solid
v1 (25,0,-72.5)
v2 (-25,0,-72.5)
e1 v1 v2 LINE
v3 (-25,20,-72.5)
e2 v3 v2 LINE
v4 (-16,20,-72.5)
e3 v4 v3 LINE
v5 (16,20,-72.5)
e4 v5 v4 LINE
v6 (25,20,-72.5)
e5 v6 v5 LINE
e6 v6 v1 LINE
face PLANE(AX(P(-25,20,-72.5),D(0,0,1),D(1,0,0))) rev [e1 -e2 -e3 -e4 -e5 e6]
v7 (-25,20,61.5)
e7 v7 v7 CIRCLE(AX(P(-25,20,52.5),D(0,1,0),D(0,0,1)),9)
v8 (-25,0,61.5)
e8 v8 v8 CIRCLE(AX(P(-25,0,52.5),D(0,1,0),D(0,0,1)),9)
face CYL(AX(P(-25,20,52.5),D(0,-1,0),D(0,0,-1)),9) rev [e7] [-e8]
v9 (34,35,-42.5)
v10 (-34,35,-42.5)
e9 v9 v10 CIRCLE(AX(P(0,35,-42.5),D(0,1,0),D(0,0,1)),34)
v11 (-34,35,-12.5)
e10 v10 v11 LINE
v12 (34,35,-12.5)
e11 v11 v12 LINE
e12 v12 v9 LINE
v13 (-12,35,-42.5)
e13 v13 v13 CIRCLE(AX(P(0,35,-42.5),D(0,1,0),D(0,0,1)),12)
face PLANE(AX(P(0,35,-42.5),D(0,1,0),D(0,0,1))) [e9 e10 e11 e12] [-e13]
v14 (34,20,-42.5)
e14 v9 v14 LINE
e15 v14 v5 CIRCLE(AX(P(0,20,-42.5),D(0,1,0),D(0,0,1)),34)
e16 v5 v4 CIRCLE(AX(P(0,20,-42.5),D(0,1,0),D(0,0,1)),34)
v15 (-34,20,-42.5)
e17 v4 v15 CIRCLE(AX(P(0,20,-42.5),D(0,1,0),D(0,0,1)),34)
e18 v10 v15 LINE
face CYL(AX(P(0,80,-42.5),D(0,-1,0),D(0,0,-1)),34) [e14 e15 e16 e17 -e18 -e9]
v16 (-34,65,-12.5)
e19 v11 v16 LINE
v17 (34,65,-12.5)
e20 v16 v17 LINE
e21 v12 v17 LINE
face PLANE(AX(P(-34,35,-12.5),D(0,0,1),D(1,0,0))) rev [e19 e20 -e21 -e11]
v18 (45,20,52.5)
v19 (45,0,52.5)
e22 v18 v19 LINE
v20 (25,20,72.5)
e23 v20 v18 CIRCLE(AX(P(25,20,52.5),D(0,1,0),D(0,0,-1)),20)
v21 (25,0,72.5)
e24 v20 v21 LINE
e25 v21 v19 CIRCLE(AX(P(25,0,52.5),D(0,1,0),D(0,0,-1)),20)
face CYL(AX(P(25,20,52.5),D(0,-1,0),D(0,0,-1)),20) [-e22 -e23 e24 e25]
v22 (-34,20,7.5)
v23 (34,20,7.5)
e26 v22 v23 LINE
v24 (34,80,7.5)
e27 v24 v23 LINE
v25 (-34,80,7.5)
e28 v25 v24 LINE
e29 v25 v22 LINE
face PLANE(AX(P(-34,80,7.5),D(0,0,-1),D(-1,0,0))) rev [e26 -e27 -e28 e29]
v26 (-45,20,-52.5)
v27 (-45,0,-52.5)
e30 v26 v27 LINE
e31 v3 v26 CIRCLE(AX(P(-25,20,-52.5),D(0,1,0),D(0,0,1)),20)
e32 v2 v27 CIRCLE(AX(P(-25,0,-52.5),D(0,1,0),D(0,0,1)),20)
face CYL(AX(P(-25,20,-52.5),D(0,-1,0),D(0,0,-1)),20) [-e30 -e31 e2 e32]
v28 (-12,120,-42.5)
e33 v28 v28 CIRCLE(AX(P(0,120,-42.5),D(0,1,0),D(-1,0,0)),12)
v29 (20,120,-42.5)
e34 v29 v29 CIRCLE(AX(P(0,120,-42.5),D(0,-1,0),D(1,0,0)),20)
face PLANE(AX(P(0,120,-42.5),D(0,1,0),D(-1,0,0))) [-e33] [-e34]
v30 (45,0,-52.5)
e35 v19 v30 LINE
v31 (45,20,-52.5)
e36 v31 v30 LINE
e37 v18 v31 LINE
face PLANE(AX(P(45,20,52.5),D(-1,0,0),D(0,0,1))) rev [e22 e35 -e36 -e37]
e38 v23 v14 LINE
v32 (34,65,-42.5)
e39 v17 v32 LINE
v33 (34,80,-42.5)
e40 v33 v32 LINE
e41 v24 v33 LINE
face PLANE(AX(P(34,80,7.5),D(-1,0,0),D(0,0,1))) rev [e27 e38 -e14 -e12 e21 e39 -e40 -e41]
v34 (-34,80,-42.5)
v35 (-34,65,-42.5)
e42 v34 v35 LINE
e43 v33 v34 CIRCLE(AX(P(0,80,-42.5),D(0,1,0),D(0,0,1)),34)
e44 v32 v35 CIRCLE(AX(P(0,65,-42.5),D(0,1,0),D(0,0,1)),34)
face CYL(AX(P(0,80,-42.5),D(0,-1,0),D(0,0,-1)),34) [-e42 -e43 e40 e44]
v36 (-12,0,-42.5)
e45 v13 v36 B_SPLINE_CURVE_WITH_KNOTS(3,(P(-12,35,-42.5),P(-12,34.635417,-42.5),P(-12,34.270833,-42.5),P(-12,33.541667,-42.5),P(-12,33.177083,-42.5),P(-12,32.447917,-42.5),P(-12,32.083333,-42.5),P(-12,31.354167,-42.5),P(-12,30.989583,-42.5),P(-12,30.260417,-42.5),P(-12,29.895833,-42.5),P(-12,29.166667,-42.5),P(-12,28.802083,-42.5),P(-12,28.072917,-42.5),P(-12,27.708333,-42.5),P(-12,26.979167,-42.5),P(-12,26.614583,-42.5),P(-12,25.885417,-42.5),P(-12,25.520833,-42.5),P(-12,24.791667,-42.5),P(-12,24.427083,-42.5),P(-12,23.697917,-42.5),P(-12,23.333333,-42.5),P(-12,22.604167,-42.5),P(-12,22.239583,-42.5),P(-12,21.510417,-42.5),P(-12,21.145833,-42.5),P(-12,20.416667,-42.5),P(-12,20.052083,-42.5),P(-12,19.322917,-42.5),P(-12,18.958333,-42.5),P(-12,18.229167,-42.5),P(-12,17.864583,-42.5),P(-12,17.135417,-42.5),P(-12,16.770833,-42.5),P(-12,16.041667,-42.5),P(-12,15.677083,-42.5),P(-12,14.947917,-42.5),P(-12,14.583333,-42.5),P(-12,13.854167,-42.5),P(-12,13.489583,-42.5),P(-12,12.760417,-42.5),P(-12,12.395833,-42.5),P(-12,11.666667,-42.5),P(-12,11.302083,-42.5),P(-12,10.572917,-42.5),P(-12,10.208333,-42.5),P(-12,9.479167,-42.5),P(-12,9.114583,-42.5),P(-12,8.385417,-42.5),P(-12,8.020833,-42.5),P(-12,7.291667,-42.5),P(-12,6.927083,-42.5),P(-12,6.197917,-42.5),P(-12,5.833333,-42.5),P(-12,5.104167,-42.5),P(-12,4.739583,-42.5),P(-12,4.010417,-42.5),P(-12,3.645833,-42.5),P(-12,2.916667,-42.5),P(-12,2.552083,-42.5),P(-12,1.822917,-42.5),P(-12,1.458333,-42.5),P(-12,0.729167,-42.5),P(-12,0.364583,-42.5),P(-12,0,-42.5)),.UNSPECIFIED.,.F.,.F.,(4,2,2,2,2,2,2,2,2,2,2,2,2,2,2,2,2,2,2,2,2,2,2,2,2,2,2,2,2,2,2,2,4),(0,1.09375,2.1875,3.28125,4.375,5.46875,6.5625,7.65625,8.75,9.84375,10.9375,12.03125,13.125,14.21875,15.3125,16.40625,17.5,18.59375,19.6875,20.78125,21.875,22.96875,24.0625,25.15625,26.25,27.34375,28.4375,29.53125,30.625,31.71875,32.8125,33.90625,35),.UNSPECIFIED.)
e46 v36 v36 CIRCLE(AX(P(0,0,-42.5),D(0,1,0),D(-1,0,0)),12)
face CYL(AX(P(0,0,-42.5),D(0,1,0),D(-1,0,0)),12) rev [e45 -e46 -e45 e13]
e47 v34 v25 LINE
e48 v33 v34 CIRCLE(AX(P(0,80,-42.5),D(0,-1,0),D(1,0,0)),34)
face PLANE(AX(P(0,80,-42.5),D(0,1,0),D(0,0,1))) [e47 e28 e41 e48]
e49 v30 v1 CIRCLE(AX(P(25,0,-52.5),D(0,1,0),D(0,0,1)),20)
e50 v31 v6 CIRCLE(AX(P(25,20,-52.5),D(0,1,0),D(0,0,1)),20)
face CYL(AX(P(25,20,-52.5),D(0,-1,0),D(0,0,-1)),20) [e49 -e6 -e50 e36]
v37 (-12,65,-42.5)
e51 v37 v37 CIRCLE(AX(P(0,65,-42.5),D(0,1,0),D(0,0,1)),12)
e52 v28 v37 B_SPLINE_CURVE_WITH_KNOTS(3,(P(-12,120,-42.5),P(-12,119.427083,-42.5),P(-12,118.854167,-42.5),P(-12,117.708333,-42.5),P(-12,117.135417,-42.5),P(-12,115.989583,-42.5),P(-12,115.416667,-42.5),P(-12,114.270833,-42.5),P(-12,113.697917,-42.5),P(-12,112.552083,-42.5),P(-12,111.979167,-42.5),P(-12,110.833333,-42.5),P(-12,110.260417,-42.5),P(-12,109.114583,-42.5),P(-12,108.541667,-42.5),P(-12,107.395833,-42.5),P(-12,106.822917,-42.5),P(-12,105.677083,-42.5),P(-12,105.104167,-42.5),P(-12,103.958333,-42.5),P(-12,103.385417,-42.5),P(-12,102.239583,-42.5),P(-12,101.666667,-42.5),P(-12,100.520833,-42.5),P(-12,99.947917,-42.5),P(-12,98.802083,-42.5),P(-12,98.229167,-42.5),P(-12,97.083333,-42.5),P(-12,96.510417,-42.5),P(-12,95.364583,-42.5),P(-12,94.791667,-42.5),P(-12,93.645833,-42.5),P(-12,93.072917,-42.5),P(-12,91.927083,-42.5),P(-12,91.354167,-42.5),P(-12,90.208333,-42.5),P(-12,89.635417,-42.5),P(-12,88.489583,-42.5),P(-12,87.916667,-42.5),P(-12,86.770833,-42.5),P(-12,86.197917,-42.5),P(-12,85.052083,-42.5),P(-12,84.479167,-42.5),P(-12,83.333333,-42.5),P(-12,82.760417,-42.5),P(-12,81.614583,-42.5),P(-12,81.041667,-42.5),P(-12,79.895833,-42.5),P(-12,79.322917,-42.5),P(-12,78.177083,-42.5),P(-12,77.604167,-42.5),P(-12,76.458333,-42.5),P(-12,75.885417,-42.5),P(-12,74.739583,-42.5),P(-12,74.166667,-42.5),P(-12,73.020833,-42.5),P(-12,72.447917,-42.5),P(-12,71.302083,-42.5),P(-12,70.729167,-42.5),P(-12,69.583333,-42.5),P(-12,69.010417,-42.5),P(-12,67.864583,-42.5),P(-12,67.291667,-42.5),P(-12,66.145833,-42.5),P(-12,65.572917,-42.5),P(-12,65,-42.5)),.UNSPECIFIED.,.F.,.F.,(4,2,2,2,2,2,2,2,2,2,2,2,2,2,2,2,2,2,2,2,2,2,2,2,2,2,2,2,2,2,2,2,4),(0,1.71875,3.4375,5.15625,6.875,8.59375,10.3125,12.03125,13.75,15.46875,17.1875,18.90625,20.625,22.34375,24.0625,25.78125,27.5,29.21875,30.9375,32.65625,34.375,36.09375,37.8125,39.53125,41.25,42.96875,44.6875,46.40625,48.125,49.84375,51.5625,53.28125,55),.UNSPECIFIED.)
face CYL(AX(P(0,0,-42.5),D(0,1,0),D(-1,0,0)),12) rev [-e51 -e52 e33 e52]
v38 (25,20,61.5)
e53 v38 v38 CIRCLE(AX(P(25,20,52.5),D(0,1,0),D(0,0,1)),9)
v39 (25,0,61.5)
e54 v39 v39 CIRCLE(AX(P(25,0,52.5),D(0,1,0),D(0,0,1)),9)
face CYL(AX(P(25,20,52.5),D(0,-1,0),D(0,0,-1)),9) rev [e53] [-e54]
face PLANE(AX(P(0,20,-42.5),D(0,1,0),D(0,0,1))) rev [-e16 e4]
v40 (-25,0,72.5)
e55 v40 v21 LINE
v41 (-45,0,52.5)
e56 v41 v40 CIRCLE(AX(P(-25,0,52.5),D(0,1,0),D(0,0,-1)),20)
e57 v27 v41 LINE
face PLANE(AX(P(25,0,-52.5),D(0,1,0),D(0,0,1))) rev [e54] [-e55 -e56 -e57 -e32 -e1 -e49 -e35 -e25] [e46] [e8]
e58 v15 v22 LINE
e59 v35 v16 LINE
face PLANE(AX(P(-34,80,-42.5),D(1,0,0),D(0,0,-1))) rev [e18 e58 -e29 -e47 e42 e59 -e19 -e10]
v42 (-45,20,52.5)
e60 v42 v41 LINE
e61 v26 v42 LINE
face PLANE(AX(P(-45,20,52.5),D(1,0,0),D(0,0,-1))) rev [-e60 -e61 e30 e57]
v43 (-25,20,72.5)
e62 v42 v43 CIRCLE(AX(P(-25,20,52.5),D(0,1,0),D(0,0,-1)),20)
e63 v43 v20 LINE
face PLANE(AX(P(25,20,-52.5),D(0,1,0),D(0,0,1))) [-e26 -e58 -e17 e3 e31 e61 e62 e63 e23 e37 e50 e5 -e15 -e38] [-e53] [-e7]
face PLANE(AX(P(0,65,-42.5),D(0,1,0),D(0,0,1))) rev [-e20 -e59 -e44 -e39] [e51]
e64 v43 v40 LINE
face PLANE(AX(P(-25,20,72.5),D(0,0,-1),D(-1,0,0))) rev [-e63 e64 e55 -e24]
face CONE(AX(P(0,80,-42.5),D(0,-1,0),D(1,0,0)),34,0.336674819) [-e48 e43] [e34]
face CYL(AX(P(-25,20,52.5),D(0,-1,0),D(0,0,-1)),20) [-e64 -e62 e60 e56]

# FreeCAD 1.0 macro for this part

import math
import FreeCAD as App
import Part
import Sketcher
from FreeCAD import Vector
Q = App.Units.Quantity

doc = App.newDocument("Part")
body = doc.addObject("PartDesign::Body", "Body")

# Sketch on XZ plane
sketch1 = doc.addObject("Sketcher::SketchObject", "Sketch")
body.addObject(sketch1)
sketch1.AttachmentSupport = (doc.XZ_Plane, [""])
sketch1.MapMode = "FlatFace"
sketch1.addGeometry(Part.LineSegment(Vector(-25, 72, 0), Vector(25, 72, 0)), False)
sketch1.addGeometry(Part.ArcOfCircle(Part.Circle(Vector(25, 53, 0), Vector(0, 0, 1), 20), math.radians(0), math.radians(90)), False)
sketch1.addGeometry(Part.LineSegment(Vector(45, 52, 0), Vector(45, -52, 0)), False)
sketch1.addGeometry(Part.ArcOfCircle(Part.Circle(Vector(25, -53, 0), Vector(0, 0, 1), 20), math.radians(-90), math.radians(0)), False)
sketch1.addGeometry(Part.LineSegment(Vector(25, -72, 0), Vector(-25, -72, 0)), False)
sketch1.addGeometry(Part.ArcOfCircle(Part.Circle(Vector(-25, -53, 0), Vector(0, 0, 1), 20), math.radians(180), math.radians(270)), False)
sketch1.addGeometry(Part.LineSegment(Vector(-45, -52, 0), Vector(-45, 52, 0)), False)
sketch1.addGeometry(Part.ArcOfCircle(Part.Circle(Vector(-25, 53, 0), Vector(0, 0, 1), 20), math.radians(90), math.radians(180)), False)
sketch1.addGeometry(Part.Circle(Vector(-25, 52, 0), Vector(0, 0, 1), 9), False)
sketch1.addGeometry(Part.Circle(Vector(25, 52, 0), Vector(0, 0, 1), 9), False)
sketch1.addConstraint(Sketcher.Constraint("Tangent", 0, 2, 1, 2))
sketch1.addConstraint(Sketcher.Constraint("Tangent", 1, 1, 2, 1))
sketch1.addConstraint(Sketcher.Constraint("Tangent", 2, 2, 3, 2))
sketch1.addConstraint(Sketcher.Constraint("Tangent", 3, 1, 4, 1))
sketch1.addConstraint(Sketcher.Constraint("Tangent", 4, 2, 5, 2))
sketch1.addConstraint(Sketcher.Constraint("Tangent", 5, 1, 6, 1))
sketch1.addConstraint(Sketcher.Constraint("Tangent", 6, 2, 7, 2))
sketch1.addConstraint(Sketcher.Constraint("Tangent", 7, 1, 0, 1))
sketch1.addConstraint(Sketcher.Constraint("Horizontal", 0))
sketch1.addConstraint(Sketcher.Constraint("Vertical", 2))
sketch1.addConstraint(Sketcher.Constraint("Horizontal", 4))
sketch1.addConstraint(Sketcher.Constraint("Vertical", 6))
sketch1.addConstraint(Sketcher.Constraint("Coincident", 8, 3, 7, 3))
sketch1.addConstraint(Sketcher.Constraint("Coincident", 9, 3, 1, 3))
sketch1.addConstraint(Sketcher.Constraint("Equal", 1, 3))
sketch1.addConstraint(Sketcher.Constraint("Equal", 3, 5))
sketch1.addConstraint(Sketcher.Constraint("Equal", 5, 7))
sketch1.addConstraint(Sketcher.Constraint("Equal", 8, 9))
sketch1.addConstraint(Sketcher.Constraint("Symmetric", 1, 3, 5, 3, -1, 1))
sketch1.addConstraint(Sketcher.Constraint("Diameter", 8, Q("18 mm")))
sketch1.addConstraint(Sketcher.Constraint("Radius", 1, Q("20 mm")))
sketch1.addConstraint(Sketcher.Constraint("DistanceX", 0, 1, 0, 2, Q("50 mm")))
sketch1.addConstraint(Sketcher.Constraint("DistanceY", 2, 2, 2, 1, Q("105 mm")))
pad1 = doc.addObject("PartDesign::Pad", "Pad")
body.addObject(pad1)
pad1.Profile = sketch1
pad1.Length = 20
pad1.Reversed = True

# Sketch on XZ plane
sketch2 = doc.addObject("Sketcher::SketchObject", "Sketch001")
body.addObject(sketch2)
sketch2.AttachmentSupport = (doc.XZ_Plane, [""])
sketch2.MapMode = "FlatFace"
sketch2.AttachmentOffset = App.Placement(Vector(0, 0, -20), App.Rotation())
sketch2.addGeometry(Part.LineSegment(Vector(-34, 8, 0), Vector(34, 8, 0)), False)
sketch2.addGeometry(Part.LineSegment(Vector(34, 8, 0), Vector(34, -42, 0)), False)
sketch2.addGeometry(Part.ArcOfCircle(Part.Circle(Vector(0, -42, 0), Vector(0, 0, 1), 34), math.radians(180), math.radians(360)), False)
sketch2.addGeometry(Part.LineSegment(Vector(-34, -42, 0), Vector(-34, 8, 0)), False)
sketch2.addConstraint(Sketcher.Constraint("Coincident", 0, 2, 1, 1))
sketch2.addConstraint(Sketcher.Constraint("Tangent", 1, 2, 2, 2))
sketch2.addConstraint(Sketcher.Constraint("Tangent", 2, 1, 3, 1))
sketch2.addConstraint(Sketcher.Constraint("Coincident", 3, 2, 0, 1))
sketch2.addConstraint(Sketcher.Constraint("Horizontal", 0))
sketch2.addConstraint(Sketcher.Constraint("Vertical", 1))
sketch2.addConstraint(Sketcher.Constraint("Vertical", 3))
sketch2.addConstraint(Sketcher.Constraint("PointOnObject", 2, 3, -2))
sketch2.addConstraint(Sketcher.Constraint("Radius", 2, Q("34 mm")))
sketch2.addConstraint(Sketcher.Constraint("DistanceY", 1, 2, 1, 1, Q("50 mm")))
sketch2.addConstraint(Sketcher.Constraint("DistanceY", 2, 3, -1, 1, Q("42.5 mm")))
pad2 = doc.addObject("PartDesign::Pad", "Pad001")
body.addObject(pad2)
pad2.Profile = sketch2
pad2.Length = 60
pad2.Reversed = True

# Sketch on XZ plane
sketch3 = doc.addObject("Sketcher::SketchObject", "Sketch002")
body.addObject(sketch3)
sketch3.AttachmentSupport = (doc.XZ_Plane, [""])
sketch3.MapMode = "FlatFace"
sketch3.AttachmentOffset = App.Placement(Vector(0, 0, -35), App.Rotation())
sketch3.addGeometry(Part.LineSegment(Vector(-34, -12, 0), Vector(34, -12, 0)), False)
sketch3.addGeometry(Part.LineSegment(Vector(34, -12, 0), Vector(34, -42, 0)), False)
sketch3.addGeometry(Part.ArcOfCircle(Part.Circle(Vector(0, -42, 0), Vector(0, 0, 1), 34), math.radians(180), math.radians(360)), False)
sketch3.addGeometry(Part.LineSegment(Vector(-34, -42, 0), Vector(-34, -12, 0)), False)
sketch3.addConstraint(Sketcher.Constraint("Coincident", 0, 2, 1, 1))
sketch3.addConstraint(Sketcher.Constraint("Tangent", 1, 2, 2, 2))
sketch3.addConstraint(Sketcher.Constraint("Tangent", 2, 1, 3, 1))
sketch3.addConstraint(Sketcher.Constraint("Coincident", 3, 2, 0, 1))
sketch3.addConstraint(Sketcher.Constraint("Horizontal", 0))
sketch3.addConstraint(Sketcher.Constraint("Vertical", 1))
sketch3.addConstraint(Sketcher.Constraint("Vertical", 3))
sketch3.addConstraint(Sketcher.Constraint("PointOnObject", 2, 3, -2))
sketch3.addConstraint(Sketcher.Constraint("Radius", 2, Q("34 mm")))
sketch3.addConstraint(Sketcher.Constraint("DistanceY", 1, 2, 1, 1, Q("30 mm")))
sketch3.addConstraint(Sketcher.Constraint("DistanceY", 2, 3, -1, 1, Q("42.5 mm")))
pocket1 = doc.addObject("PartDesign::Pocket", "Pocket")
body.addObject(pocket1)
pocket1.Profile = sketch3
pocket1.Length = 30

# Sketch on XY plane
sketch4 = doc.addObject("Sketcher::SketchObject", "Sketch003")
body.addObject(sketch4)
sketch4.AttachmentSupport = (doc.XY_Plane, [""])
sketch4.MapMode = "FlatFace"
sketch4.AttachmentOffset = App.Placement(Vector(0, 0, -42.5), App.Rotation())
sketch4.addGeometry(Part.LineSegment(Vector(20, 120, 0), Vector(0, 120, 0)), False)
sketch4.addGeometry(Part.LineSegment(Vector(0, 120, 0), Vector(0, 80, 0)), False)
sketch4.addGeometry(Part.LineSegment(Vector(0, 80, 0), Vector(34, 80, 0)), False)
sketch4.addGeometry(Part.LineSegment(Vector(34, 80, 0), Vector(20, 120, 0)), False)
sketch4.addConstraint(Sketcher.Constraint("Coincident", 0, 2, 1, 1))
sketch4.addConstraint(Sketcher.Constraint("Coincident", 1, 2, 2, 1))
sketch4.addConstraint(Sketcher.Constraint("Coincident", 2, 2, 3, 1))
sketch4.addConstraint(Sketcher.Constraint("Coincident", 3, 2, 0, 1))
sketch4.addConstraint(Sketcher.Constraint("Horizontal", 0))
sketch4.addConstraint(Sketcher.Constraint("Vertical", 1))
sketch4.addConstraint(Sketcher.Constraint("Horizontal", 2))
sketch4.addConstraint(Sketcher.Constraint("PointOnObject", 0, 2, -2))
sketch4.addConstraint(Sketcher.Constraint("DistanceX", 0, 2, 0, 1, Q("20 mm")))
sketch4.addConstraint(Sketcher.Constraint("DistanceX", 2, 1, 2, 2, Q("34 mm")))
sketch4.addConstraint(Sketcher.Constraint("DistanceY", 1, 2, 1, 1, Q("40 mm")))
sketch4.addConstraint(Sketcher.Constraint("DistanceY", -1, 1, 0, 2, Q("120 mm")))
revolution = doc.addObject("PartDesign::Revolution", "Revolution")
body.addObject(revolution)
revolution.Profile = sketch4
revolution.ReferenceAxis = (sketch4, ["V_Axis"])
revolution.Angle = 360

# Sketch on XZ plane
sketch5 = doc.addObject("Sketcher::SketchObject", "Sketch004")
body.addObject(sketch5)
sketch5.AttachmentSupport = (doc.XZ_Plane, [""])
sketch5.MapMode = "FlatFace"
sketch5.AttachmentOffset = App.Placement(Vector(0, 0, -120), App.Rotation())
sketch5.addGeometry(Part.Circle(Vector(0, -42, 0), Vector(0, 0, 1), 12), False)
sketch5.addConstraint(Sketcher.Constraint("PointOnObject", 0, 3, -2))
sketch5.addConstraint(Sketcher.Constraint("Diameter", 0, Q("24 mm")))
sketch5.addConstraint(Sketcher.Constraint("DistanceY", 0, 3, -1, 1, Q("42.5 mm")))
pocket2 = doc.addObject("PartDesign::Pocket", "Pocket001")
body.addObject(pocket2)
pocket2.Profile = sketch5
pocket2.Type = "ThroughAll"
pocket2.Reversed = True

doc.recompute()
